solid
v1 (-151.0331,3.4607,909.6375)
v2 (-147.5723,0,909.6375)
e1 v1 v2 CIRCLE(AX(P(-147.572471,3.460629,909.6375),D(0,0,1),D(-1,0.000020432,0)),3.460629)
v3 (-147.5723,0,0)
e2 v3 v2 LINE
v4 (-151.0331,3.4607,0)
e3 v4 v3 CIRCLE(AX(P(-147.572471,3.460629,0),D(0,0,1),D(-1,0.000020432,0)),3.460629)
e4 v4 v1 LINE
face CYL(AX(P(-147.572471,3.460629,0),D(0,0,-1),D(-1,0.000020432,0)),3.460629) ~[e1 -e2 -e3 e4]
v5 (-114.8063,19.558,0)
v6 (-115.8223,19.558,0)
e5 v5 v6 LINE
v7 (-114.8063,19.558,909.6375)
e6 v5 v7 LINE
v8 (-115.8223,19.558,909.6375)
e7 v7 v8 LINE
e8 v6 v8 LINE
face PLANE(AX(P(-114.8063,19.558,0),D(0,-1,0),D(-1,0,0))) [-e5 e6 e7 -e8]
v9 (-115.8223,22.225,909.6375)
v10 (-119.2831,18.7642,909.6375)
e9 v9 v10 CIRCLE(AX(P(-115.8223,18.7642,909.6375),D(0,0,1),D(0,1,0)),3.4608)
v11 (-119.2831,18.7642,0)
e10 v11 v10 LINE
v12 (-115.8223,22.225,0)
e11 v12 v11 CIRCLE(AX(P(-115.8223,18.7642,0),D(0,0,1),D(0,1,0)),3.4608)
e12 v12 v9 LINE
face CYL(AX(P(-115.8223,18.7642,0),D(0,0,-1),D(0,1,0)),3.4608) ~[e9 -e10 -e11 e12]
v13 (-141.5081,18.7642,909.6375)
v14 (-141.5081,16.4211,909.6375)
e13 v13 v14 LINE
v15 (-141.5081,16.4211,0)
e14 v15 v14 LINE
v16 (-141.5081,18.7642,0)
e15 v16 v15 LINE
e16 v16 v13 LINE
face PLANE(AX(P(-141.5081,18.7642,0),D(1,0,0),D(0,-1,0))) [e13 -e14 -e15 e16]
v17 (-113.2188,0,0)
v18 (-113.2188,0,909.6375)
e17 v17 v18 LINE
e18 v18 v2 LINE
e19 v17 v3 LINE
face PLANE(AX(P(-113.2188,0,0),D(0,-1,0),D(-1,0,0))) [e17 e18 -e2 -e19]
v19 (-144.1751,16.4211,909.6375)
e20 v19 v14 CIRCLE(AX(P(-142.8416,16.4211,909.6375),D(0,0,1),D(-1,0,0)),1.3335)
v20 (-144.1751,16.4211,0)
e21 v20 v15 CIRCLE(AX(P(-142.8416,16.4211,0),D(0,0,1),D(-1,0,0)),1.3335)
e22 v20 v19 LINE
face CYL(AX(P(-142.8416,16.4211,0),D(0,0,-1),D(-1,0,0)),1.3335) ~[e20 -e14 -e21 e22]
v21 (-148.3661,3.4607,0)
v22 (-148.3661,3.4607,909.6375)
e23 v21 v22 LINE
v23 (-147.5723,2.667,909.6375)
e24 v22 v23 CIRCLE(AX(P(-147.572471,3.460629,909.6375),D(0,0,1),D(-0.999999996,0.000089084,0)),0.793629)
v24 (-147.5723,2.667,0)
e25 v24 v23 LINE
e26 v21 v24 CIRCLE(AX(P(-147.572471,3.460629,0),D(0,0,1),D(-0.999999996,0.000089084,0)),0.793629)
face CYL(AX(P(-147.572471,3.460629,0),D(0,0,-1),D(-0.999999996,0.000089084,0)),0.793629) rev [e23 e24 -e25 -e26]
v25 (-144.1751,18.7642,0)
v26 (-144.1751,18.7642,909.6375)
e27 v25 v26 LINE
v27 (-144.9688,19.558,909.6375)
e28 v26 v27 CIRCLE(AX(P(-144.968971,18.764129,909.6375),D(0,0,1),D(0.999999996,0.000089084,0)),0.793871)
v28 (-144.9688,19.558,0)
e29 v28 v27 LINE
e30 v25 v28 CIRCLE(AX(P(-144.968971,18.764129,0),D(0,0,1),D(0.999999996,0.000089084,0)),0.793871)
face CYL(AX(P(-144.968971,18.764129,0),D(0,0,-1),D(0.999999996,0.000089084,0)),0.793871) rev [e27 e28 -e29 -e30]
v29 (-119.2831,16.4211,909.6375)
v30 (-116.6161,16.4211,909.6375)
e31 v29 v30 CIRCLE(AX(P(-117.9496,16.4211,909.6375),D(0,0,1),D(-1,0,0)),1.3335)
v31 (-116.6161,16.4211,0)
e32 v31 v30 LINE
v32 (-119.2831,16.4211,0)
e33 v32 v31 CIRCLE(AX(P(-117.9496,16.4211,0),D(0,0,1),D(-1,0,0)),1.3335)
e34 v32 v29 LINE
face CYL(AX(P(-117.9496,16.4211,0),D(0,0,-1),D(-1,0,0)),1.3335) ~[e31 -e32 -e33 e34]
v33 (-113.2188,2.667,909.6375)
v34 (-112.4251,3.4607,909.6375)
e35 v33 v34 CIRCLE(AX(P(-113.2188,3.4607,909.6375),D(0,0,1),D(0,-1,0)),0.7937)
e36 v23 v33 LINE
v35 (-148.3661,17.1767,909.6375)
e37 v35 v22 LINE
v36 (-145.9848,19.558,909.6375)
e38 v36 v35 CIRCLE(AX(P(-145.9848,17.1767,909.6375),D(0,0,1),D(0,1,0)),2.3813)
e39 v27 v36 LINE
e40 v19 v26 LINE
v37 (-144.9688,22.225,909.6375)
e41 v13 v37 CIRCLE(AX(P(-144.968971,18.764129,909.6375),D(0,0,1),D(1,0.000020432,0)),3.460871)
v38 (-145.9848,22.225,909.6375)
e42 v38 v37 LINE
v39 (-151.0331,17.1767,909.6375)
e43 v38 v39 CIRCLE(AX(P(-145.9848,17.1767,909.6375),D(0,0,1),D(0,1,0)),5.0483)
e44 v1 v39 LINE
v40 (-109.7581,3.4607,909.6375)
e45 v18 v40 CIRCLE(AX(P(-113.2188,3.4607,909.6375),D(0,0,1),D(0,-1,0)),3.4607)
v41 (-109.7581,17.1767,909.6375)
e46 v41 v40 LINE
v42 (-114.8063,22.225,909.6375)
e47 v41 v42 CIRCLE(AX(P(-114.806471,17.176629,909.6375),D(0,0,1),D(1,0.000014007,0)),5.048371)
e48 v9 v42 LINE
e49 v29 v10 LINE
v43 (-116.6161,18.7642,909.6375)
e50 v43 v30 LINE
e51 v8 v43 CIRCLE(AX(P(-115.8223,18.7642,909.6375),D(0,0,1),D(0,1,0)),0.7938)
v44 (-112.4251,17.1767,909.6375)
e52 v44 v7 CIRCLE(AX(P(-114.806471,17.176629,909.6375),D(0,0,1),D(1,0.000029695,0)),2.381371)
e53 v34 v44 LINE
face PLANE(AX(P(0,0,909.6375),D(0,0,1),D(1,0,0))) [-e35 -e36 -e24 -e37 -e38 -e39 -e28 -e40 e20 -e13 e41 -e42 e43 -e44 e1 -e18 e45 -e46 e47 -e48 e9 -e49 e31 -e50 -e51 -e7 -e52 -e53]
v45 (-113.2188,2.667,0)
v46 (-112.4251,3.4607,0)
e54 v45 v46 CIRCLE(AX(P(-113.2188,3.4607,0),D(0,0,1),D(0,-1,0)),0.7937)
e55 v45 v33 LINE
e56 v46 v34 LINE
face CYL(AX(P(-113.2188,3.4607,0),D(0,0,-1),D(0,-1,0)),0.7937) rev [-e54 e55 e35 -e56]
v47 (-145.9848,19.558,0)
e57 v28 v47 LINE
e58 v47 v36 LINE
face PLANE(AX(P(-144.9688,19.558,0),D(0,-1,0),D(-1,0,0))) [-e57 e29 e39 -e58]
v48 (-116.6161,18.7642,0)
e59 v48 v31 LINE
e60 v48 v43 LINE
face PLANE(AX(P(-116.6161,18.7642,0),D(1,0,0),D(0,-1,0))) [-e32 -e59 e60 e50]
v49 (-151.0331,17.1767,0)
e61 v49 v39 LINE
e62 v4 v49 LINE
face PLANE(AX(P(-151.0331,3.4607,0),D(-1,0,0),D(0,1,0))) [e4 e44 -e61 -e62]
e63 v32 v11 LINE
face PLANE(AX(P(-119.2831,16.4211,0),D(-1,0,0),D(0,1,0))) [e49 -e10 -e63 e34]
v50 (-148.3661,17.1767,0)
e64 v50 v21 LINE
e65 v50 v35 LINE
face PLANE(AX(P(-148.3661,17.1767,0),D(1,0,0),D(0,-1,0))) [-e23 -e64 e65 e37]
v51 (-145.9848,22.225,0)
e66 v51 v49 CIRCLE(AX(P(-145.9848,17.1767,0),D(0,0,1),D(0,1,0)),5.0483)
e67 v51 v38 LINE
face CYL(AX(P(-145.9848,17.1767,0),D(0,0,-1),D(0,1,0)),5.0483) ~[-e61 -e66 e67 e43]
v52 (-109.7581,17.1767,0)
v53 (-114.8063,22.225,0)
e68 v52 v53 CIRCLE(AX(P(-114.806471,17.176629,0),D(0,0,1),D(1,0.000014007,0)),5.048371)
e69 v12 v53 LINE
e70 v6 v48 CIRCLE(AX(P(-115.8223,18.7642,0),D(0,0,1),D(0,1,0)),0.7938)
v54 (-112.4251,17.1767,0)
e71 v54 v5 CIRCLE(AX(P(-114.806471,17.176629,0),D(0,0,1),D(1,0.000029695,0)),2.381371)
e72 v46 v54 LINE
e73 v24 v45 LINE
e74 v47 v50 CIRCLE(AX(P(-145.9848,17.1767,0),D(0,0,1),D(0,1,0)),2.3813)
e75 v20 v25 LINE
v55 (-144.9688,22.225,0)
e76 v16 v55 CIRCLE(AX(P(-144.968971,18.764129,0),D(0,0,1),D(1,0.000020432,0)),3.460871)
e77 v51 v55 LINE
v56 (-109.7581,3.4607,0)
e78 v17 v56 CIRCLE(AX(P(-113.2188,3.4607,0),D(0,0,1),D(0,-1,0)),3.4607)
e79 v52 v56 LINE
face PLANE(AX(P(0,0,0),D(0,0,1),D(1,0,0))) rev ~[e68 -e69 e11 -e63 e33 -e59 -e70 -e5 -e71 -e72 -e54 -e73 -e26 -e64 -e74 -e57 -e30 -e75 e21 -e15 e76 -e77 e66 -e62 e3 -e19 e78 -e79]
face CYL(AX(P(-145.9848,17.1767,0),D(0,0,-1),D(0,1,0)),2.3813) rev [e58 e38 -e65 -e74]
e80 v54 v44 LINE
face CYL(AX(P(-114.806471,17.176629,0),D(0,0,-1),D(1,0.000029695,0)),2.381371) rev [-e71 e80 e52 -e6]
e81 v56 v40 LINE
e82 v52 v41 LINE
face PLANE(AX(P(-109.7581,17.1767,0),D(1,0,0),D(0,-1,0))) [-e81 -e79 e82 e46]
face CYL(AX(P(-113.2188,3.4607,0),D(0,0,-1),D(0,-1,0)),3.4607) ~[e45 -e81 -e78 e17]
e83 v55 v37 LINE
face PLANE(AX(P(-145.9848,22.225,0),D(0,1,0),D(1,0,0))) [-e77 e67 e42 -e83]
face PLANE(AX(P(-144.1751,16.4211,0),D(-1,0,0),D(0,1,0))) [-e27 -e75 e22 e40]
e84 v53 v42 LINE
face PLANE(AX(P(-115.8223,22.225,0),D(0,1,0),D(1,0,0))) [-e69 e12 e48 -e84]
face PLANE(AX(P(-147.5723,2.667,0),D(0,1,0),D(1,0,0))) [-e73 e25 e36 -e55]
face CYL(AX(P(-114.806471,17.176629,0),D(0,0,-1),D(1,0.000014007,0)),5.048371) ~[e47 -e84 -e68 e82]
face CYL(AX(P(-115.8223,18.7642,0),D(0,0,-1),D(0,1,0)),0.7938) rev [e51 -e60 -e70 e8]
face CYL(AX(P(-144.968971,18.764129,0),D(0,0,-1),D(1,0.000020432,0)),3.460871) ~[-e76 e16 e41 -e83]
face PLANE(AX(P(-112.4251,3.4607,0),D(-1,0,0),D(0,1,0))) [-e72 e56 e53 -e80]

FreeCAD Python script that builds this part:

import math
import FreeCAD as App
import Part
import Sketcher
from FreeCAD import Vector
Q = App.Units.Quantity

doc = App.newDocument("Part")
params = doc.addObject("Spreadsheet::Sheet", "Params")
for row, (alias, value) in enumerate([
    ("sketch1_radius", "0.031252 in"),
    ("sketch1_radius2", "0.093748 in"),
    ("sketch1_width", "0.04 in"),
    ("sketch1_height", "0.54 in"),
    ("pad1_length", "35.8125 in"),
], start=1):
    params.set(f"A{row}", alias)
    params.set(f"B{row}", "=" + value)
    params.setAlias(f"B{row}", alias)

body = doc.addObject("PartDesign::Body", "Body")

sketch1 = doc.addObject("Sketcher::SketchObject", "Sketch")
body.addObject(sketch1)
sketch1.AttachmentSupport = (doc.XY_Plane, [""])
sketch1.MapMode = "FlatFace"
sketch1.addGeometry(Part.LineSegment(Vector(-147.6, 0, 0), Vector(-113.2, 0, 0)), False)
sketch1.addGeometry(Part.ArcOfCircle(Part.Circle(Vector(-113.2, 3.5, 0), Vector(0, 0, 1), 3.5), math.radians(-90), math.radians(0)), False)
sketch1.addGeometry(Part.LineSegment(Vector(-109.8, 3.5, 0), Vector(-109.8, 17.2, 0)), False)
sketch1.addGeometry(Part.ArcOfCircle(Part.Circle(Vector(-114.8, 17.2, 0), Vector(0, 0, 1), 5), math.radians(0), math.radians(90)), False)
sketch1.addGeometry(Part.LineSegment(Vector(-114.8, 22.2, 0), Vector(-115.8, 22.2, 0)), False)
sketch1.addGeometry(Part.ArcOfCircle(Part.Circle(Vector(-115.8, 18.8, 0), Vector(0, 0, 1), 3.5), math.radians(90), math.radians(180)), False)
sketch1.addGeometry(Part.LineSegment(Vector(-119.3, 18.8, 0), Vector(-119.3, 16.4, 0)), False)
sketch1.addGeometry(Part.ArcOfCircle(Part.Circle(Vector(-117.9, 16.4, 0), Vector(0, 0, 1), 1.3), math.radians(180), math.radians(360)), False)
sketch1.addGeometry(Part.LineSegment(Vector(-116.6, 16.4, 0), Vector(-116.6, 18.8, 0)), False)
sketch1.addGeometry(Part.ArcOfCircle(Part.Circle(Vector(-115.8, 18.8, 0), Vector(0, 0, 1), 0.8), math.radians(90), math.radians(180)), False)
sketch1.addGeometry(Part.LineSegment(Vector(-115.8, 19.6, 0), Vector(-114.8, 19.6, 0)), False)
sketch1.addGeometry(Part.ArcOfCircle(Part.Circle(Vector(-114.8, 17.2, 0), Vector(0, 0, 1), 2.4), math.radians(0), math.radians(90)), False)
sketch1.addGeometry(Part.LineSegment(Vector(-112.4, 17.2, 0), Vector(-112.4, 3.5, 0)), False)
sketch1.addGeometry(Part.ArcOfCircle(Part.Circle(Vector(-113.2, 3.5, 0), Vector(0, 0, 1), 0.8), math.radians(-90), math.radians(0)), False)
sketch1.addGeometry(Part.LineSegment(Vector(-113.2, 2.7, 0), Vector(-147.6, 2.7, 0)), False)
sketch1.addGeometry(Part.ArcOfCircle(Part.Circle(Vector(-147.6, 3.5, 0), Vector(0, 0, 1), 0.8), math.radians(180), math.radians(270)), False)
sketch1.addGeometry(Part.LineSegment(Vector(-148.4, 3.5, 0), Vector(-148.4, 17.2, 0)), False)
sketch1.addGeometry(Part.ArcOfCircle(Part.Circle(Vector(-146, 17.2, 0), Vector(0, 0, 1), 2.4), math.radians(90), math.radians(180)), False)
sketch1.addGeometry(Part.LineSegment(Vector(-146, 19.6, 0), Vector(-145, 19.6, 0)), False)
sketch1.addGeometry(Part.ArcOfCircle(Part.Circle(Vector(-145, 18.8, 0), Vector(0, 0, 1), 0.8), math.radians(0), math.radians(90)), False)
sketch1.addGeometry(Part.LineSegment(Vector(-144.2, 18.8, 0), Vector(-144.2, 16.4, 0)), False)
sketch1.addGeometry(Part.ArcOfCircle(Part.Circle(Vector(-142.8, 16.4, 0), Vector(0, 0, 1), 1.3), math.radians(180), math.radians(360)), False)
sketch1.addGeometry(Part.LineSegment(Vector(-141.5, 16.4, 0), Vector(-141.5, 18.8, 0)), False)
sketch1.addGeometry(Part.ArcOfCircle(Part.Circle(Vector(-145, 18.8, 0), Vector(0, 0, 1), 3.5), math.radians(0), math.radians(90)), False)
sketch1.addGeometry(Part.LineSegment(Vector(-145, 22.2, 0), Vector(-146, 22.2, 0)), False)
sketch1.addGeometry(Part.ArcOfCircle(Part.Circle(Vector(-146, 17.2, 0), Vector(0, 0, 1), 5), math.radians(90), math.radians(180)), False)
sketch1.addGeometry(Part.LineSegment(Vector(-151, 17.2, 0), Vector(-151, 3.5, 0)), False)
sketch1.addGeometry(Part.ArcOfCircle(Part.Circle(Vector(-147.6, 3.5, 0), Vector(0, 0, 1), 3.5), math.radians(180), math.radians(270)), False)
sketch1.addConstraint(Sketcher.Constraint("Tangent", 0, 2, 1, 1))
sketch1.addConstraint(Sketcher.Constraint("Tangent", 1, 2, 2, 1))
sketch1.addConstraint(Sketcher.Constraint("Tangent", 2, 2, 3, 1))
sketch1.addConstraint(Sketcher.Constraint("Tangent", 3, 2, 4, 1))
sketch1.addConstraint(Sketcher.Constraint("Tangent", 4, 2, 5, 1))
sketch1.addConstraint(Sketcher.Constraint("Tangent", 5, 2, 6, 1))
sketch1.addConstraint(Sketcher.Constraint("Tangent", 6, 2, 7, 1))
sketch1.addConstraint(Sketcher.Constraint("Tangent", 7, 2, 8, 1))
sketch1.addConstraint(Sketcher.Constraint("Tangent", 8, 2, 9, 2))
sketch1.addConstraint(Sketcher.Constraint("Tangent", 9, 1, 10, 1))
sketch1.addConstraint(Sketcher.Constraint("Tangent", 10, 2, 11, 2))
sketch1.addConstraint(Sketcher.Constraint("Tangent", 11, 1, 12, 1))
sketch1.addConstraint(Sketcher.Constraint("Tangent", 12, 2, 13, 2))
sketch1.addConstraint(Sketcher.Constraint("Tangent", 13, 1, 14, 1))
sketch1.addConstraint(Sketcher.Constraint("Tangent", 14, 2, 15, 2))
sketch1.addConstraint(Sketcher.Constraint("Tangent", 15, 1, 16, 1))
sketch1.addConstraint(Sketcher.Constraint("Tangent", 16, 2, 17, 2))
sketch1.addConstraint(Sketcher.Constraint("Tangent", 17, 1, 18, 1))
sketch1.addConstraint(Sketcher.Constraint("Tangent", 18, 2, 19, 2))
sketch1.addConstraint(Sketcher.Constraint("Tangent", 19, 1, 20, 1))
sketch1.addConstraint(Sketcher.Constraint("Tangent", 20, 2, 21, 1))
sketch1.addConstraint(Sketcher.Constraint("Tangent", 21, 2, 22, 1))
sketch1.addConstraint(Sketcher.Constraint("Tangent", 22, 2, 23, 1))
sketch1.addConstraint(Sketcher.Constraint("Tangent", 23, 2, 24, 1))
sketch1.addConstraint(Sketcher.Constraint("Tangent", 24, 2, 25, 1))
sketch1.addConstraint(Sketcher.Constraint("Tangent", 25, 2, 26, 1))
sketch1.addConstraint(Sketcher.Constraint("Tangent", 26, 2, 27, 1))
sketch1.addConstraint(Sketcher.Constraint("Tangent", 27, 2, 0, 1))
sketch1.addConstraint(Sketcher.Constraint("Horizontal", 0))
sketch1.addConstraint(Sketcher.Constraint("Vertical", 2))
sketch1.addConstraint(Sketcher.Constraint("Horizontal", 4))
sketch1.addConstraint(Sketcher.Constraint("Vertical", 6))
sketch1.addConstraint(Sketcher.Constraint("Vertical", 8))
sketch1.addConstraint(Sketcher.Constraint("Horizontal", 10))
sketch1.addConstraint(Sketcher.Constraint("Vertical", 12))
sketch1.addConstraint(Sketcher.Constraint("Horizontal", 14))
sketch1.addConstraint(Sketcher.Constraint("Vertical", 16))
sketch1.addConstraint(Sketcher.Constraint("Horizontal", 18))
sketch1.addConstraint(Sketcher.Constraint("Vertical", 20))
sketch1.addConstraint(Sketcher.Constraint("Vertical", 22))
sketch1.addConstraint(Sketcher.Constraint("Horizontal", 24))
sketch1.addConstraint(Sketcher.Constraint("Vertical", 26))
sketch1.addConstraint(Sketcher.Constraint("Coincident", 9, 3, 5, 3))
sketch1.addConstraint(Sketcher.Constraint("Coincident", 11, 3, 3, 3))
sketch1.addConstraint(Sketcher.Constraint("Coincident", 13, 3, 1, 3))
sketch1.addConstraint(Sketcher.Constraint("Coincident", 23, 3, 19, 3))
sketch1.addConstraint(Sketcher.Constraint("Coincident", 25, 3, 17, 3))
sketch1.addConstraint(Sketcher.Constraint("Coincident", 27, 3, 15, 3))
sketch1.addConstraint(Sketcher.Constraint("Equal", 1, 5))
sketch1.addConstraint(Sketcher.Constraint("Equal", 13, 15))
sketch1.addConstraint(Sketcher.Constraint("Equal", 11, 17))
sketch1.addConstraint(Sketcher.Constraint("Equal", 15, 19))
sketch1.addConstraint(Sketcher.Constraint("PointOnObject", 0, 2, -1))
sketch1.addConstraint(Sketcher.Constraint("Horizontal", 11, 3, 17, 3))
sketch1.addConstraint(Sketcher.Constraint("Horizontal", 7, 3, 21, 3))
sketch1.addConstraint(Sketcher.Constraint("Equal", 10, 18))
sketch1.addConstraint(Sketcher.Constraint("Radius", 9, Q("0.031252 in")))
sketch1.addConstraint(Sketcher.Constraint("Radius", 11, Q("0.093748 in")))
sketch1.addConstraint(Sketcher.Constraint("DistanceX", 4, 2, 4, 1, Q("0.04 in")))
sketch1.addConstraint(Sketcher.Constraint("DistanceY", 2, 1, 2, 2, Q("0.54 in")))
sketch1.addConstraint(Sketcher.Constraint("Radius", 7, Q("0.0525 in")))
sketch1.addConstraint(Sketcher.Constraint("DistanceX", 15, 3, 5, 3, Q("1.25 in")))
sketch1.addConstraint(Sketcher.Constraint("DistanceY", 6, 2, 6, 1, 2.343))
sketch1.addConstraint(Sketcher.Constraint("DistanceX", 1, 3, -1, 1, 113.2188))
sketch1.setExpression("Constraints[56]", "Params.sketch1_radius")
sketch1.setExpression("Constraints[57]", "Params.sketch1_radius2")
sketch1.setExpression("Constraints[58]", "Params.sketch1_width")
sketch1.setExpression("Constraints[59]", "Params.sketch1_height")
pad1 = doc.addObject("PartDesign::Pad", "Pad")
body.addObject(pad1)
pad1.Profile = sketch1
pad1.setExpression("Length", "Params.pad1_length")

doc.recompute()
